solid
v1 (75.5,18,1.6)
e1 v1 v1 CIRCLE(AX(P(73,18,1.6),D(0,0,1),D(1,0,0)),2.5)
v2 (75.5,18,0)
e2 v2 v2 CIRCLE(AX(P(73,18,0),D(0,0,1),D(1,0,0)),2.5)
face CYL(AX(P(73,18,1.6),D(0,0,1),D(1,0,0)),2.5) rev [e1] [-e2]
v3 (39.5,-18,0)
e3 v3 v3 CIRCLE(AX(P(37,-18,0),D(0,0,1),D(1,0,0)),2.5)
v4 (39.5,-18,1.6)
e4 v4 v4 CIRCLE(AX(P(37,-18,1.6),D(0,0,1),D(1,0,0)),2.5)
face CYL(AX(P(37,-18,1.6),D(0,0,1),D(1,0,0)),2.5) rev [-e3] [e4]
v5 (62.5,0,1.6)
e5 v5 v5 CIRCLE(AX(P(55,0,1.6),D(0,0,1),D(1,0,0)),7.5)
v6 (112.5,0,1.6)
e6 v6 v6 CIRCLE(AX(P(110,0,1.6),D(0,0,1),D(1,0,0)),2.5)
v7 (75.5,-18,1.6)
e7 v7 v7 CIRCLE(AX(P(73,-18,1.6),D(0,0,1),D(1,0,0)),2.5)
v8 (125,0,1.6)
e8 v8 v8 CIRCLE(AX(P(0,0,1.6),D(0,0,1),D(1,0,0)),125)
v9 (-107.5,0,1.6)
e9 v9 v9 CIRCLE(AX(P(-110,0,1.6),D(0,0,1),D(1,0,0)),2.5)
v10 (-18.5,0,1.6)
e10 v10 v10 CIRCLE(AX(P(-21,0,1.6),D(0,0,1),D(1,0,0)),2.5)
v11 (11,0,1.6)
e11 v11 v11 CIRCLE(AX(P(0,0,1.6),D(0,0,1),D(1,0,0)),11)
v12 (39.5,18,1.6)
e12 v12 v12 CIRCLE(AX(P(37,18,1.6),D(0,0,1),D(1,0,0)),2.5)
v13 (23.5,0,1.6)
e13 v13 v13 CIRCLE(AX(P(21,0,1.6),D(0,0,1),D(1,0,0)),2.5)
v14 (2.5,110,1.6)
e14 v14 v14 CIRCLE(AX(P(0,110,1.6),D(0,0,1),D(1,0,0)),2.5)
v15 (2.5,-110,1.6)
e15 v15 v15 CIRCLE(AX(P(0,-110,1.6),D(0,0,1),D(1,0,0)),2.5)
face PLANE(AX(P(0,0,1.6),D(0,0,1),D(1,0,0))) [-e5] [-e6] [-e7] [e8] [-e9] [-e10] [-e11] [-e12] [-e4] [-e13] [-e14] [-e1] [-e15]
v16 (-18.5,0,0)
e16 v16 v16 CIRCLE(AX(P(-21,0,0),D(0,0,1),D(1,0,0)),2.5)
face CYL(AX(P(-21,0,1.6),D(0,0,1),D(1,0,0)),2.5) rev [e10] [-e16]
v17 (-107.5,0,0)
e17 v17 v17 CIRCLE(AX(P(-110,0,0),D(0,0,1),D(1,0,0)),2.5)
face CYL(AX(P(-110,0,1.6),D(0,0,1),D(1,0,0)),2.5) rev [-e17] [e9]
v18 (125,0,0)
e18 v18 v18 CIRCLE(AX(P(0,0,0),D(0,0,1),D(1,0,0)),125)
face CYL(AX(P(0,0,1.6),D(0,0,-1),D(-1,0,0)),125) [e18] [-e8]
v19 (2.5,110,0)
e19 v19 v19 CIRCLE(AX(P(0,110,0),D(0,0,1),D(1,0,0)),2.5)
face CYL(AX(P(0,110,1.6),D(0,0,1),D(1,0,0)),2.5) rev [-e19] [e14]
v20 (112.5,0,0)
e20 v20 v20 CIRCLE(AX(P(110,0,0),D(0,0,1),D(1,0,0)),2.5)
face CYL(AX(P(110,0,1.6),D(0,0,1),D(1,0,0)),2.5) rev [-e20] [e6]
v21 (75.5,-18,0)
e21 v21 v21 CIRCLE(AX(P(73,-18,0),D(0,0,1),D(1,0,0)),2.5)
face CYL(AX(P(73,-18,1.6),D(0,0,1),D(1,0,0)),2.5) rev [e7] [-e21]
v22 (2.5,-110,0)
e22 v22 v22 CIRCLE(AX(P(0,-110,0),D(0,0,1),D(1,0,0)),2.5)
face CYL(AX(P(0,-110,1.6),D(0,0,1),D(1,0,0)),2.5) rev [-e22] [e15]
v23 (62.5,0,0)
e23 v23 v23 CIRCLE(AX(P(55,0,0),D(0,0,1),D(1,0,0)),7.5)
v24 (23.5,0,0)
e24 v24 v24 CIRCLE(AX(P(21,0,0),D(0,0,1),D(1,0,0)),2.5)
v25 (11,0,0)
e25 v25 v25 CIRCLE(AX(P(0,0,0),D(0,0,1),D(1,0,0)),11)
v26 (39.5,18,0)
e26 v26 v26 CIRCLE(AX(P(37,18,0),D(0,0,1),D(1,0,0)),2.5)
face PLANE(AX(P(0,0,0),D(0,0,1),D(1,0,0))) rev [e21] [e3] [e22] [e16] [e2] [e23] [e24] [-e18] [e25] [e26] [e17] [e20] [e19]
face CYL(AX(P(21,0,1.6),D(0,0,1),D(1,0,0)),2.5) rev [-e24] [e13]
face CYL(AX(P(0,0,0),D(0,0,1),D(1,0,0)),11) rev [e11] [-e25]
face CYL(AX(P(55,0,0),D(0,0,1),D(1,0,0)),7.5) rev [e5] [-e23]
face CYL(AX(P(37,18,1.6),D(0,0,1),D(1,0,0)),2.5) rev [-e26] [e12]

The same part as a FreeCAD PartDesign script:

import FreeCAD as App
import Part
import Sketcher
from FreeCAD import Vector

doc = App.newDocument("Part")
body = doc.addObject("PartDesign::Body", "Body")

# Sketch on XY plane
sketch1 = body.newObject("Sketcher::SketchObject", "Sketch")
sketch1.AttachmentSupport = (doc.getObject("XY_Plane"), [""])
sketch1.MapMode = "FlatFace"
sketch1.addGeometry(Part.Circle(Vector(0, 0, 0), Vector(0, 0, 1), 125), False)
sketch1.addConstraint(Sketcher.Constraint("Coincident", 0, 3, -1, 1))
sketch1.addConstraint(Sketcher.Constraint("Diameter", 0, 250.0))
pad1 = body.newObject("PartDesign::Pad", "Pad")
pad1.Profile = sketch1
pad1.Length = 1.6

# Sketch on XY plane
sketch2 = body.newObject("Sketcher::SketchObject", "Sketch001")
sketch2.AttachmentSupport = (doc.getObject("XY_Plane"), [""])
sketch2.MapMode = "FlatFace"
sketch2.AttachmentOffset = App.Placement(Vector(0, 0, 1.6), App.Rotation())
sketch2.addGeometry(Part.Circle(Vector(0, 0, 0), Vector(0, 0, 1), 11), False)
sketch2.addConstraint(Sketcher.Constraint("Coincident", 0, 3, -1, 1))
sketch2.addConstraint(Sketcher.Constraint("Diameter", 0, 22.0))
pocket1 = body.newObject("PartDesign::Pocket", "Pocket")
pocket1.Profile = sketch2
pocket1.Type = "ThroughAll"

# Sketch on XY plane
sketch3 = body.newObject("Sketcher::SketchObject", "Sketch002")
sketch3.AttachmentSupport = (doc.getObject("XY_Plane"), [""])
sketch3.MapMode = "FlatFace"
sketch3.AttachmentOffset = App.Placement(Vector(0, 0, 1.6), App.Rotation())
sketch3.addGeometry(Part.Circle(Vector(55, 0, 0), Vector(0, 0, 1), 7.5), False)
sketch3.addConstraint(Sketcher.Constraint("PointOnObject", 0, 3, -1))
sketch3.addConstraint(Sketcher.Constraint("Diameter", 0, 15.0))
sketch3.addConstraint(Sketcher.Constraint("DistanceX", -1, 1, 0, 3, 55.0))
pocket2 = body.newObject("PartDesign::Pocket", "Pocket001")
pocket2.Profile = sketch3
pocket2.Type = "ThroughAll"

# Sketch on XY plane
sketch4 = body.newObject("Sketcher::SketchObject", "Sketch003")
sketch4.AttachmentSupport = (doc.getObject("XY_Plane"), [""])
sketch4.MapMode = "FlatFace"
sketch4.AttachmentOffset = App.Placement(Vector(0, 0, 1.6), App.Rotation())
sketch4.addGeometry(Part.Circle(Vector(110, 0, 0), Vector(0, 0, 1), 2.5), False)
sketch4.addConstraint(Sketcher.Constraint("PointOnObject", 0, 3, -1))
sketch4.addConstraint(Sketcher.Constraint("Diameter", 0, 5.0))
sketch4.addConstraint(Sketcher.Constraint("DistanceX", -1, 1, 0, 3, 110.0))
doc.recompute()
hole = body.newObject("PartDesign::Hole", "Hole")
hole.Profile = sketch4
hole.ThreadType = "None"
hole.Diameter = 5
hole.DepthType = "ThroughAll"

# Sketch on XY plane
sketch5 = body.newObject("Sketcher::SketchObject", "Sketch004")
sketch5.AttachmentSupport = (doc.getObject("XY_Plane"), [""])
sketch5.MapMode = "FlatFace"
sketch5.AttachmentOffset = App.Placement(Vector(0, 0, 1.6), App.Rotation())
sketch5.addGeometry(Part.Circle(Vector(-110, 0, 0), Vector(0, 0, 1), 2.5), False)
sketch5.addConstraint(Sketcher.Constraint("PointOnObject", 0, 3, -1))
sketch5.addConstraint(Sketcher.Constraint("Diameter", 0, 5.0))
sketch5.addConstraint(Sketcher.Constraint("DistanceX", 0, 3, -1, 1, 110.0))
doc.recompute()
hole2 = body.newObject("PartDesign::Hole", "Hole001")
hole2.Profile = sketch5
hole2.ThreadType = "None"
hole2.Diameter = 5
hole2.DepthType = "ThroughAll"

# Sketch on XY plane
sketch6 = body.newObject("Sketcher::SketchObject", "Sketch005")
sketch6.AttachmentSupport = (doc.getObject("XY_Plane"), [""])
sketch6.MapMode = "FlatFace"
sketch6.AttachmentOffset = App.Placement(Vector(0, 0, 1.6), App.Rotation())
sketch6.addGeometry(Part.Circle(Vector(-21, 0, 0), Vector(0, 0, 1), 2.5), False)
sketch6.addConstraint(Sketcher.Constraint("PointOnObject", 0, 3, -1))
sketch6.addConstraint(Sketcher.Constraint("Diameter", 0, 5.0))
sketch6.addConstraint(Sketcher.Constraint("DistanceX", 0, 3, -1, 1, 21.0))
doc.recompute()
hole3 = body.newObject("PartDesign::Hole", "Hole002")
hole3.Profile = sketch6
hole3.ThreadType = "None"
hole3.Diameter = 5
hole3.DepthType = "ThroughAll"

# Sketch on XY plane
sketch7 = body.newObject("Sketcher::SketchObject", "Sketch006")
sketch7.AttachmentSupport = (doc.getObject("XY_Plane"), [""])
sketch7.MapMode = "FlatFace"
sketch7.AttachmentOffset = App.Placement(Vector(0, 0, 1.6), App.Rotation())
sketch7.addGeometry(Part.Circle(Vector(21, 0, 0), Vector(0, 0, 1), 2.5), False)
sketch7.addConstraint(Sketcher.Constraint("PointOnObject", 0, 3, -1))
sketch7.addConstraint(Sketcher.Constraint("Diameter", 0, 5.0))
sketch7.addConstraint(Sketcher.Constraint("DistanceX", -1, 1, 0, 3, 21.0))
doc.recompute()
hole4 = body.newObject("PartDesign::Hole", "Hole003")
hole4.Profile = sketch7
hole4.ThreadType = "None"
hole4.Diameter = 5
hole4.DepthType = "ThroughAll"

# Sketch on XY plane
sketch8 = body.newObject("Sketcher::SketchObject", "Sketch007")
sketch8.AttachmentSupport = (doc.getObject("XY_Plane"), [""])
sketch8.MapMode = "FlatFace"
sketch8.AttachmentOffset = App.Placement(Vector(0, 0, 1.6), App.Rotation())
sketch8.addGeometry(Part.Circle(Vector(37, 18, 0), Vector(0, 0, 1), 2.5), False)
sketch8.addGeometry(Part.Circle(Vector(73, 18, 0), Vector(0, 0, 1), 2.5), False)
sketch8.addGeometry(Part.Circle(Vector(73, -18, 0), Vector(0, 0, 1), 2.5), False)
sketch8.addGeometry(Part.Circle(Vector(37, -18, 0), Vector(0, 0, 1), 2.5), False)
sketch8.addConstraint(Sketcher.Constraint("Equal", 0, 1))
sketch8.addConstraint(Sketcher.Constraint("Equal", 1, 2))
sketch8.addConstraint(Sketcher.Constraint("Equal", 2, 3))
sketch8.addConstraint(Sketcher.Constraint("Symmetric", 1, 3, 2, 3, -1))
sketch8.addConstraint(Sketcher.Constraint("Symmetric", 0, 3, 3, 3, -1))
sketch8.addConstraint(Sketcher.Constraint("Horizontal", 0, 3, 1, 3))
sketch8.addConstraint(Sketcher.Constraint("Diameter", 0, 5.0))
sketch8.addConstraint(Sketcher.Constraint("DistanceX", -1, 1, 0, 3, 37.0))
sketch8.addConstraint(Sketcher.Constraint("DistanceY", -1, 1, 0, 3, 18.0))
sketch8.addConstraint(Sketcher.Constraint("DistanceX", -1, 1, 1, 3, 73.0))
doc.recompute()
hole5 = body.newObject("PartDesign::Hole", "Hole004")
hole5.Profile = sketch8
hole5.ThreadType = "None"
hole5.Diameter = 5
hole5.DepthType = "ThroughAll"

# Sketch on XY plane
sketch9 = body.newObject("Sketcher::SketchObject", "Sketch008")
sketch9.AttachmentSupport = (doc.getObject("XY_Plane"), [""])
sketch9.MapMode = "FlatFace"
sketch9.AttachmentOffset = App.Placement(Vector(0, 0, 1.6), App.Rotation())
sketch9.addGeometry(Part.Circle(Vector(0, 110, 0), Vector(0, 0, 1), 2.5), False)
sketch9.addGeometry(Part.Circle(Vector(0, -110, 0), Vector(0, 0, 1), 2.5), False)
sketch9.addConstraint(Sketcher.Constraint("Equal", 0, 1))
sketch9.addConstraint(Sketcher.Constraint("Symmetric", 0, 3, 1, 3, -1, 1))
sketch9.addConstraint(Sketcher.Constraint("PointOnObject", 0, 3, -2))
sketch9.addConstraint(Sketcher.Constraint("Diameter", 0, 5.0))
sketch9.addConstraint(Sketcher.Constraint("DistanceY", -1, 1, 0, 3, 110.0))
doc.recompute()
hole6 = body.newObject("PartDesign::Hole", "Hole005")
hole6.Profile = sketch9
hole6.ThreadType = "None"
hole6.Diameter = 5
hole6.DepthType = "ThroughAll"

doc.recompute()
